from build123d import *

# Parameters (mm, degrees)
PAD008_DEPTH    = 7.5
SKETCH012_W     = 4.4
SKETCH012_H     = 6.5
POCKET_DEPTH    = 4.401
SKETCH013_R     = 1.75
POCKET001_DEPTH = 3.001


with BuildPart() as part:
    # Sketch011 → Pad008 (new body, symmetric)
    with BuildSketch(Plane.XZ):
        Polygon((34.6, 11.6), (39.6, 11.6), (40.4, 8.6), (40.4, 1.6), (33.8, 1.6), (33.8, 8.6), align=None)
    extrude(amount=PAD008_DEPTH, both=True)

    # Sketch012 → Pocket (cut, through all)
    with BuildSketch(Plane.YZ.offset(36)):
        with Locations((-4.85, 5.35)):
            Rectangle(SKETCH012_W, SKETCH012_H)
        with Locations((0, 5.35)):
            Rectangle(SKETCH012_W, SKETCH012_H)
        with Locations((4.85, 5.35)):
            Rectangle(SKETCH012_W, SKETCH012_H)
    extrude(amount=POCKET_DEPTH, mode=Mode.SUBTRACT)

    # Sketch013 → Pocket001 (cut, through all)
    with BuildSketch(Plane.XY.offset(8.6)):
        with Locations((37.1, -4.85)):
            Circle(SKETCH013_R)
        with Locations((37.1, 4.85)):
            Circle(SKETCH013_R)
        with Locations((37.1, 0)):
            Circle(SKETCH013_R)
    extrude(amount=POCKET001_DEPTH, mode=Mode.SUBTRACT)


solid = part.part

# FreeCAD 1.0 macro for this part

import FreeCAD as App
import Part
import Sketcher
from FreeCAD import Vector


def add_polygon(sketch, points):
    """Adds a closed chain of lines whose ends are joined by coincident constraints."""
    first, n = sketch.GeometryCount, len(points)
    for a, b in zip(points, points[1:] + points[:1]):
        sketch.addGeometry(Part.LineSegment(App.Vector(*a, 0), App.Vector(*b, 0)), False)
    for i in range(n):
        sketch.addConstraint(Sketcher.Constraint("Coincident", first + i, 2, first + (i + 1) % n, 1))

doc = App.newDocument("Part")
body = doc.addObject("PartDesign::Body", "Body")

# Sketch on XZ plane
sketch1 = doc.addObject("Sketcher::SketchObject", "Sketch")
body.addObject(sketch1)
sketch1.AttachmentSupport = (doc.XZ_Plane, [""])
sketch1.MapMode = "FlatFace"
add_polygon(sketch1, [(39.6, 11.6), (34.6, 11.6), (33.8, 8.6), (33.8, 1.6), (40.4, 1.6), (40.4, 8.6)])  # lines 0-5
sketch1.addConstraint([
    Sketcher.Constraint("Horizontal", 0),
    Sketcher.Constraint("Vertical", 2),
    Sketcher.Constraint("Horizontal", 3),
    Sketcher.Constraint("Vertical", 4),
    Sketcher.Constraint("Horizontal", 1, 2, 4, 2),
    Sketcher.Constraint("Equal", 1, 5),
    Sketcher.Constraint("DistanceX", 0, 2, 0, 1, 5.0),
    Sketcher.Constraint("DistanceY", 2, 2, 2, 1, 7.0),
    Sketcher.Constraint("DistanceX", 3, 1, 3, 2, 6.6),
    Sketcher.Constraint("DistanceY", 1, 2, 0, 2, 3.0),
    Sketcher.Constraint("DistanceX", -1, 1, 0, 2, 34.6),
    Sketcher.Constraint("DistanceY", -1, 1, 0, 2, 11.6),
])
pad1 = doc.addObject("PartDesign::Pad", "Pad")
body.addObject(pad1)
pad1.Profile = sketch1
pad1.Length = 15
pad1.Midplane = True

# Sketch on YZ plane
sketch2 = doc.addObject("Sketcher::SketchObject", "Sketch001")
body.addObject(sketch2)
sketch2.AttachmentSupport = (doc.YZ_Plane, [""])
sketch2.MapMode = "FlatFace"
sketch2.AttachmentOffset = App.Placement(Vector(0, 0, 36), App.Rotation())
add_polygon(sketch2, [(-7, 8.6), (-7, 2.1), (-2.6, 2.1), (-2.6, 8.6)])  # lines 0-3
add_polygon(sketch2, [(-2.2, 8.6), (-2.2, 2.1), (2.2, 2.1), (2.2, 8.6)])  # lines 4-7
add_polygon(sketch2, [(2.6, 8.6), (2.6, 2.1), (7, 2.1), (7, 8.6)])  # lines 8-11
sketch2.addConstraint([
    Sketcher.Constraint("Vertical", 0),
    Sketcher.Constraint("Horizontal", 1),
    Sketcher.Constraint("Vertical", 2),
    Sketcher.Constraint("Horizontal", 3),
    Sketcher.Constraint("Vertical", 4),
    Sketcher.Constraint("Horizontal", 5),
    Sketcher.Constraint("Vertical", 6),
    Sketcher.Constraint("Horizontal", 7),
    Sketcher.Constraint("Vertical", 8),
    Sketcher.Constraint("Horizontal", 9),
    Sketcher.Constraint("Vertical", 10),
    Sketcher.Constraint("Horizontal", 11),
    Sketcher.Constraint("Symmetric", 1, 2, 8, 2, -2),
    Sketcher.Constraint("Symmetric", 3, 2, 10, 2, -2),
    Sketcher.Constraint("Horizontal", 1, 2, 4, 2),
    Sketcher.Constraint("Horizontal", 3, 2, 6, 2),
    Sketcher.Constraint("Equal", 3, 5),
    Sketcher.Constraint("DistanceX", 1, 1, 1, 2, 4.4),
    Sketcher.Constraint("DistanceY", 0, 2, 0, 1, 6.5),
    Sketcher.Constraint("DistanceY", -1, 1, 0, 2, 2.1),
    Sketcher.Constraint("DistanceX", 4, 2, -1, 1, 2.2),
    Sketcher.Constraint("DistanceX", 1, 2, 8, 2, 5.3),
])
pocket1 = doc.addObject("PartDesign::Pocket", "Pocket")
body.addObject(pocket1)
pocket1.Profile = sketch2
pocket1.Type = "ThroughAll"
pocket1.Reversed = True

# Sketch on XY plane
sketch3 = doc.addObject("Sketcher::SketchObject", "Sketch002")
body.addObject(sketch3)
sketch3.AttachmentSupport = (doc.XY_Plane, [""])
sketch3.MapMode = "FlatFace"
sketch3.AttachmentOffset = App.Placement(Vector(0, 0, 8.6), App.Rotation())
sketch3.addGeometry([
    Part.Circle(Vector(37.1, -4.8, 0), Vector(0, 0, 1), 1.8),
    Part.Circle(Vector(37.1, 4.8, 0), Vector(0, 0, 1), 1.8),
    Part.Circle(Vector(37.1, 0, 0), Vector(0, 0, 1), 1.8),
], False)
sketch3.addConstraint([
    Sketcher.Constraint("Equal", 0, 1),
    Sketcher.Constraint("Equal", 1, 2),
    Sketcher.Constraint("Symmetric", 0, 3, 1, 3, -1),
    Sketcher.Constraint("PointOnObject", 2, 3, -1),
    Sketcher.Constraint("Vertical", 1, 3, 2, 3),
    Sketcher.Constraint("Diameter", 0, 3.5),
    Sketcher.Constraint("DistanceX", -1, 1, 0, 3, 37.1),
    Sketcher.Constraint("DistanceY", 0, 3, 1, 3, 9.7),
])
pocket2 = doc.addObject("PartDesign::Pocket", "Pocket001")
body.addObject(pocket2)
pocket2.Profile = sketch3
pocket2.Type = "ThroughAll"
pocket2.Reversed = True

doc.recompute()
